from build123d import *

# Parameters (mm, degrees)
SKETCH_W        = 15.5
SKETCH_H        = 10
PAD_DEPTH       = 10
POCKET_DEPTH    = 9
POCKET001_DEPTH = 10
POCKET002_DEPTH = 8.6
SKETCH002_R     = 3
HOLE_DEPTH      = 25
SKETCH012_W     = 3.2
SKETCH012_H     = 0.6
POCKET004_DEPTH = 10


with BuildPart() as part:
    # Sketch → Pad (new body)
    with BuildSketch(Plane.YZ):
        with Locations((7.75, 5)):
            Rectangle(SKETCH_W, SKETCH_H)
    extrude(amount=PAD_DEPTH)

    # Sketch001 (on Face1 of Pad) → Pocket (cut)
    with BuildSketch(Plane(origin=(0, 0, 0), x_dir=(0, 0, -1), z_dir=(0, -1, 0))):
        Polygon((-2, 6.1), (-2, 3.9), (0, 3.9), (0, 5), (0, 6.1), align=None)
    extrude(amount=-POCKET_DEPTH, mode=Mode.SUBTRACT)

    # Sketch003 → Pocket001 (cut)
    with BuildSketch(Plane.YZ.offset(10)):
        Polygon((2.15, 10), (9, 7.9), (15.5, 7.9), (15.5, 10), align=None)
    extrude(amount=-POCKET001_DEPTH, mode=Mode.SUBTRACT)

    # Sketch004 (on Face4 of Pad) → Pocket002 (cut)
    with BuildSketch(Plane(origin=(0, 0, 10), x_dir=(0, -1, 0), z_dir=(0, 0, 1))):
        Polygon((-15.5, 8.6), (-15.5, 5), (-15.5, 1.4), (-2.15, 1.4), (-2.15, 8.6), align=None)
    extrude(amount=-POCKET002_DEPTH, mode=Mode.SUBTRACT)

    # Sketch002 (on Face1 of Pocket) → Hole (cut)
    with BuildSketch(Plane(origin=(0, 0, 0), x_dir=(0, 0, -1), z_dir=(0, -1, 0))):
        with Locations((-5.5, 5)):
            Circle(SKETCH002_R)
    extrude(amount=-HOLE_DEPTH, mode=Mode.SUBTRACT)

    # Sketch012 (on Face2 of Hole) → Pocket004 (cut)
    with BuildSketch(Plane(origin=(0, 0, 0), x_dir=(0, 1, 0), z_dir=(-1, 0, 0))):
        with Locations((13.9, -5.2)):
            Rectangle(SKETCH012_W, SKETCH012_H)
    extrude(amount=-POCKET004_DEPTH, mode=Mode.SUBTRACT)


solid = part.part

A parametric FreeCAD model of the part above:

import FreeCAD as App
import Part
import Sketcher

doc = App.newDocument("Part")
params = doc.addObject("Spreadsheet::Sheet", "Params")
for row, (alias, value) in enumerate([
    ("sketch1_height", "10 mm"),
    ("sketch1_width", "15.5 mm"),
    ("pad1_length", "10 mm"),
    ("sketch2_height", "2 mm"),
    ("sketch2_width", "2.2 mm"),
    ("pocket1_length", "9 mm"),
    ("sketch3_width", "6.5 mm"),
    ("sketch3_height", "2.1 mm"),
    ("sketch3_width2", "13.35 mm"),
    ("pocket2_length", "10 mm"),
    ("sketch4_width", "7.2 mm"),
    ("sketch4_height", "13.35 mm"),
    ("pocket3_length", "8.6 mm"),
    ("sketch5_diameter", "6 mm"),
    ("pocket4_length", "25 mm"),
    ("sketch6_width", "3.2 mm"),
    ("sketch6_height", "0.6 mm"),
    ("pocket5_length", "10 mm"),
], start=1):
    params.set(f"A{row}", alias)
    params.set(f"B{row}", "=" + value)
    params.setAlias(f"B{row}", alias)

body = doc.addObject("PartDesign::Body", "Body")

# Sketch on YZ plane
sketch1 = body.newObject("Sketcher::SketchObject", "Sketch")
sketch1.AttachmentSupport = (doc.getObject("YZ_Plane"), [""])
sketch1.MapMode = "FlatFace"
sketch1.addGeometry(Part.LineSegment(App.Vector(0, 10, 0), App.Vector(0, 0, 0)), False)
sketch1.addGeometry(Part.LineSegment(App.Vector(0, 0, 0), App.Vector(16, 0, 0)), False)
sketch1.addGeometry(Part.LineSegment(App.Vector(16, 0, 0), App.Vector(16, 10, 0)), False)
sketch1.addGeometry(Part.LineSegment(App.Vector(16, 10, 0), App.Vector(0, 10, 0)), False)
sketch1.addConstraint(Sketcher.Constraint("Coincident", 0, 2, 1, 1))
sketch1.addConstraint(Sketcher.Constraint("Coincident", 1, 2, 2, 1))
sketch1.addConstraint(Sketcher.Constraint("Coincident", 2, 2, 3, 1))
sketch1.addConstraint(Sketcher.Constraint("Coincident", 3, 2, 0, 1))
sketch1.addConstraint(Sketcher.Constraint("Vertical", 0))
sketch1.addConstraint(Sketcher.Constraint("Horizontal", 1))
sketch1.addConstraint(Sketcher.Constraint("Vertical", 2))
sketch1.addConstraint(Sketcher.Constraint("Horizontal", 3))
sketch1.addConstraint(Sketcher.Constraint("Coincident", 0, 2, -1, 1))
sketch1.addConstraint(Sketcher.Constraint("DistanceY", 0, 2, 0, 1, 10.0))
sketch1.addConstraint(Sketcher.Constraint("DistanceX", 1, 1, 1, 2, 15.5))
sketch1.setExpression("Constraints[9]", "Params.sketch1_height")
sketch1.setExpression("Constraints[10]", "Params.sketch1_width")
pad1 = body.newObject("PartDesign::Pad", "Pad")
pad1.Profile = sketch1
pad1.setExpression("Length", "Params.pad1_length")

# Sketch on XZ plane
sketch2 = body.newObject("Sketcher::SketchObject", "Sketch001")
sketch2.AttachmentSupport = (doc.getObject("XZ_Plane"), [""])
sketch2.MapMode = "FlatFace"
sketch2.addGeometry(Part.LineSegment(App.Vector(6.1, 2, 0), App.Vector(3.9, 2, 0)), False)
sketch2.addGeometry(Part.LineSegment(App.Vector(3.9, 2, 0), App.Vector(3.9, 0, 0)), False)
sketch2.addGeometry(Part.LineSegment(App.Vector(3.9, 0, 0), App.Vector(6.1, 0, 0)), False)
sketch2.addGeometry(Part.LineSegment(App.Vector(6.1, 0, 0), App.Vector(6.1, 2, 0)), False)
sketch2.addConstraint(Sketcher.Constraint("Coincident", 0, 2, 1, 1))
sketch2.addConstraint(Sketcher.Constraint("Coincident", 1, 2, 2, 1))
sketch2.addConstraint(Sketcher.Constraint("Coincident", 2, 2, 3, 1))
sketch2.addConstraint(Sketcher.Constraint("Coincident", 3, 2, 0, 1))
sketch2.addConstraint(Sketcher.Constraint("Horizontal", 0))
sketch2.addConstraint(Sketcher.Constraint("Vertical", 1))
sketch2.addConstraint(Sketcher.Constraint("Horizontal", 2))
sketch2.addConstraint(Sketcher.Constraint("Vertical", 3))
sketch2.addConstraint(Sketcher.Constraint("PointOnObject", 1, 2, -1))
sketch2.addConstraint(Sketcher.Constraint("DistanceY", 1, 2, 1, 1, 2.0))
sketch2.addConstraint(Sketcher.Constraint("DistanceX", 0, 2, 0, 1, 2.2))
sketch2.addConstraint(Sketcher.Constraint("DistanceX", -1, 1, 0, 2, 3.9))
sketch2.setExpression("Constraints[9]", "Params.sketch2_height")
sketch2.setExpression("Constraints[10]", "Params.sketch2_width")
pocket1 = body.newObject("PartDesign::Pocket", "Pocket")
pocket1.Profile = sketch2
pocket1.setExpression("Length", "Params.pocket1_length")

# Sketch on YZ plane
sketch3 = body.newObject("Sketcher::SketchObject", "Sketch002")
sketch3.AttachmentSupport = (doc.getObject("YZ_Plane"), [""])
sketch3.MapMode = "FlatFace"
sketch3.AttachmentOffset = App.Placement(App.Vector(0, 0, 10), App.Rotation())
sketch3.addGeometry(Part.LineSegment(App.Vector(2.1, 10, 0), App.Vector(9, 7.9, 0)), False)
sketch3.addGeometry(Part.LineSegment(App.Vector(9, 7.9, 0), App.Vector(15.5, 7.9, 0)), False)
sketch3.addGeometry(Part.LineSegment(App.Vector(15.5, 7.9, 0), App.Vector(15.5, 10, 0)), False)
sketch3.addGeometry(Part.LineSegment(App.Vector(15.5, 10, 0), App.Vector(2.1, 10, 0)), False)
sketch3.addConstraint(Sketcher.Constraint("Coincident", 0, 2, 1, 1))
sketch3.addConstraint(Sketcher.Constraint("Coincident", 1, 2, 2, 1))
sketch3.addConstraint(Sketcher.Constraint("Coincident", 2, 2, 3, 1))
sketch3.addConstraint(Sketcher.Constraint("Coincident", 3, 2, 0, 1))
sketch3.addConstraint(Sketcher.Constraint("Horizontal", 1))
sketch3.addConstraint(Sketcher.Constraint("Vertical", 2))
sketch3.addConstraint(Sketcher.Constraint("Horizontal", 3))
sketch3.addConstraint(Sketcher.Constraint("DistanceX", 1, 1, 1, 2, 6.5))
sketch3.addConstraint(Sketcher.Constraint("DistanceY", 2, 1, 2, 2, 2.1))
sketch3.addConstraint(Sketcher.Constraint("DistanceX", -1, 1, 0, 2, 9.0))
sketch3.addConstraint(Sketcher.Constraint("DistanceY", -1, 1, 2, 2, 10.0))
sketch3.addConstraint(Sketcher.Constraint("DistanceX", 3, 2, 3, 1, 13.35))
sketch3.setExpression("Constraints[7]", "Params.sketch3_width")
sketch3.setExpression("Constraints[8]", "Params.sketch3_height")
sketch3.setExpression("Constraints[11]", "Params.sketch3_width2")
pocket2 = body.newObject("PartDesign::Pocket", "Pocket001")
pocket2.Profile = sketch3
pocket2.setExpression("Length", "Params.pocket2_length")

# Sketch on XY plane
sketch4 = body.newObject("Sketcher::SketchObject", "Sketch003")
sketch4.AttachmentSupport = (doc.getObject("XY_Plane"), [""])
sketch4.MapMode = "FlatFace"
sketch4.AttachmentOffset = App.Placement(App.Vector(0, 0, 10), App.Rotation())
sketch4.addGeometry(Part.LineSegment(App.Vector(9, 16, 0), App.Vector(1, 16, 0)), False)
sketch4.addGeometry(Part.LineSegment(App.Vector(1, 16, 0), App.Vector(1, 2, 0)), False)
sketch4.addGeometry(Part.LineSegment(App.Vector(1, 2, 0), App.Vector(9, 2, 0)), False)
sketch4.addGeometry(Part.LineSegment(App.Vector(9, 2, 0), App.Vector(9, 16, 0)), False)
sketch4.addConstraint(Sketcher.Constraint("Coincident", 0, 2, 1, 1))
sketch4.addConstraint(Sketcher.Constraint("Coincident", 1, 2, 2, 1))
sketch4.addConstraint(Sketcher.Constraint("Coincident", 2, 2, 3, 1))
sketch4.addConstraint(Sketcher.Constraint("Coincident", 3, 2, 0, 1))
sketch4.addConstraint(Sketcher.Constraint("Horizontal", 0))
sketch4.addConstraint(Sketcher.Constraint("Vertical", 1))
sketch4.addConstraint(Sketcher.Constraint("Horizontal", 2))
sketch4.addConstraint(Sketcher.Constraint("Vertical", 3))
sketch4.addConstraint(Sketcher.Constraint("DistanceX", 0, 2, 0, 1, 7.2))
sketch4.addConstraint(Sketcher.Constraint("DistanceY", 1, 2, 1, 1, 13.35))
sketch4.addConstraint(Sketcher.Constraint("DistanceX", -1, 1, 0, 2, 1.4))
sketch4.addConstraint(Sketcher.Constraint("DistanceY", -1, 1, 0, 2, 15.5))
sketch4.setExpression("Constraints[8]", "Params.sketch4_width")
sketch4.setExpression("Constraints[9]", "Params.sketch4_height")
pocket3 = body.newObject("PartDesign::Pocket", "Pocket002")
pocket3.Profile = sketch4
pocket3.setExpression("Length", "Params.pocket3_length")

# Sketch on XZ plane
sketch5 = body.newObject("Sketcher::SketchObject", "Sketch004")
sketch5.AttachmentSupport = (doc.getObject("XZ_Plane"), [""])
sketch5.MapMode = "FlatFace"
sketch5.addGeometry(Part.Circle(App.Vector(5, 5.5, 0), App.Vector(0, 0, 1), 3), False)
sketch5.addConstraint(Sketcher.Constraint("Diameter", 0, 6.0))
sketch5.addConstraint(Sketcher.Constraint("DistanceX", -1, 1, 0, 3, 5.0))
sketch5.addConstraint(Sketcher.Constraint("DistanceY", -1, 1, 0, 3, 5.5))
sketch5.setExpression("Constraints[0]", "Params.sketch5_diameter")
pocket4 = body.newObject("PartDesign::Pocket", "Pocket003")
pocket4.Profile = sketch5
pocket4.setExpression("Length", "Params.pocket4_length")

# Sketch on YZ plane
sketch6 = body.newObject("Sketcher::SketchObject", "Sketch005")
sketch6.AttachmentSupport = (doc.getObject("YZ_Plane"), [""])
sketch6.MapMode = "FlatFace"
sketch6.addGeometry(Part.LineSegment(App.Vector(12.3, 4.9, 0), App.Vector(12.3, 5.5, 0)), False)
sketch6.addGeometry(Part.LineSegment(App.Vector(12.3, 5.5, 0), App.Vector(15.5, 5.5, 0)), False)
sketch6.addGeometry(Part.LineSegment(App.Vector(15.5, 5.5, 0), App.Vector(15.5, 4.9, 0)), False)
sketch6.addGeometry(Part.LineSegment(App.Vector(15.5, 4.9, 0), App.Vector(12.3, 4.9, 0)), False)
sketch6.addConstraint(Sketcher.Constraint("Coincident", 0, 2, 1, 1))
sketch6.addConstraint(Sketcher.Constraint("Coincident", 1, 2, 2, 1))
sketch6.addConstraint(Sketcher.Constraint("Coincident", 2, 2, 3, 1))
sketch6.addConstraint(Sketcher.Constraint("Coincident", 3, 2, 0, 1))
sketch6.addConstraint(Sketcher.Constraint("Vertical", 0))
sketch6.addConstraint(Sketcher.Constraint("Horizontal", 1))
sketch6.addConstraint(Sketcher.Constraint("Vertical", 2))
sketch6.addConstraint(Sketcher.Constraint("Horizontal", 3))
sketch6.addConstraint(Sketcher.Constraint("DistanceX", 1, 1, 1, 2, 3.2))
sketch6.addConstraint(Sketcher.Constraint("DistanceY", 0, 1, 0, 2, 0.6))
sketch6.addConstraint(Sketcher.Constraint("DistanceX", -1, 1, 0, 2, 12.3))
sketch6.addConstraint(Sketcher.Constraint("DistanceY", -1, 1, 0, 2, 5.5))
sketch6.setExpression("Constraints[8]", "Params.sketch6_width")
sketch6.setExpression("Constraints[9]", "Params.sketch6_height")
pocket5 = body.newObject("PartDesign::Pocket", "Pocket004")
pocket5.Profile = sketch6
pocket5.setExpression("Length", "Params.pocket5_length")
pocket5.Reversed = True

doc.recompute()
